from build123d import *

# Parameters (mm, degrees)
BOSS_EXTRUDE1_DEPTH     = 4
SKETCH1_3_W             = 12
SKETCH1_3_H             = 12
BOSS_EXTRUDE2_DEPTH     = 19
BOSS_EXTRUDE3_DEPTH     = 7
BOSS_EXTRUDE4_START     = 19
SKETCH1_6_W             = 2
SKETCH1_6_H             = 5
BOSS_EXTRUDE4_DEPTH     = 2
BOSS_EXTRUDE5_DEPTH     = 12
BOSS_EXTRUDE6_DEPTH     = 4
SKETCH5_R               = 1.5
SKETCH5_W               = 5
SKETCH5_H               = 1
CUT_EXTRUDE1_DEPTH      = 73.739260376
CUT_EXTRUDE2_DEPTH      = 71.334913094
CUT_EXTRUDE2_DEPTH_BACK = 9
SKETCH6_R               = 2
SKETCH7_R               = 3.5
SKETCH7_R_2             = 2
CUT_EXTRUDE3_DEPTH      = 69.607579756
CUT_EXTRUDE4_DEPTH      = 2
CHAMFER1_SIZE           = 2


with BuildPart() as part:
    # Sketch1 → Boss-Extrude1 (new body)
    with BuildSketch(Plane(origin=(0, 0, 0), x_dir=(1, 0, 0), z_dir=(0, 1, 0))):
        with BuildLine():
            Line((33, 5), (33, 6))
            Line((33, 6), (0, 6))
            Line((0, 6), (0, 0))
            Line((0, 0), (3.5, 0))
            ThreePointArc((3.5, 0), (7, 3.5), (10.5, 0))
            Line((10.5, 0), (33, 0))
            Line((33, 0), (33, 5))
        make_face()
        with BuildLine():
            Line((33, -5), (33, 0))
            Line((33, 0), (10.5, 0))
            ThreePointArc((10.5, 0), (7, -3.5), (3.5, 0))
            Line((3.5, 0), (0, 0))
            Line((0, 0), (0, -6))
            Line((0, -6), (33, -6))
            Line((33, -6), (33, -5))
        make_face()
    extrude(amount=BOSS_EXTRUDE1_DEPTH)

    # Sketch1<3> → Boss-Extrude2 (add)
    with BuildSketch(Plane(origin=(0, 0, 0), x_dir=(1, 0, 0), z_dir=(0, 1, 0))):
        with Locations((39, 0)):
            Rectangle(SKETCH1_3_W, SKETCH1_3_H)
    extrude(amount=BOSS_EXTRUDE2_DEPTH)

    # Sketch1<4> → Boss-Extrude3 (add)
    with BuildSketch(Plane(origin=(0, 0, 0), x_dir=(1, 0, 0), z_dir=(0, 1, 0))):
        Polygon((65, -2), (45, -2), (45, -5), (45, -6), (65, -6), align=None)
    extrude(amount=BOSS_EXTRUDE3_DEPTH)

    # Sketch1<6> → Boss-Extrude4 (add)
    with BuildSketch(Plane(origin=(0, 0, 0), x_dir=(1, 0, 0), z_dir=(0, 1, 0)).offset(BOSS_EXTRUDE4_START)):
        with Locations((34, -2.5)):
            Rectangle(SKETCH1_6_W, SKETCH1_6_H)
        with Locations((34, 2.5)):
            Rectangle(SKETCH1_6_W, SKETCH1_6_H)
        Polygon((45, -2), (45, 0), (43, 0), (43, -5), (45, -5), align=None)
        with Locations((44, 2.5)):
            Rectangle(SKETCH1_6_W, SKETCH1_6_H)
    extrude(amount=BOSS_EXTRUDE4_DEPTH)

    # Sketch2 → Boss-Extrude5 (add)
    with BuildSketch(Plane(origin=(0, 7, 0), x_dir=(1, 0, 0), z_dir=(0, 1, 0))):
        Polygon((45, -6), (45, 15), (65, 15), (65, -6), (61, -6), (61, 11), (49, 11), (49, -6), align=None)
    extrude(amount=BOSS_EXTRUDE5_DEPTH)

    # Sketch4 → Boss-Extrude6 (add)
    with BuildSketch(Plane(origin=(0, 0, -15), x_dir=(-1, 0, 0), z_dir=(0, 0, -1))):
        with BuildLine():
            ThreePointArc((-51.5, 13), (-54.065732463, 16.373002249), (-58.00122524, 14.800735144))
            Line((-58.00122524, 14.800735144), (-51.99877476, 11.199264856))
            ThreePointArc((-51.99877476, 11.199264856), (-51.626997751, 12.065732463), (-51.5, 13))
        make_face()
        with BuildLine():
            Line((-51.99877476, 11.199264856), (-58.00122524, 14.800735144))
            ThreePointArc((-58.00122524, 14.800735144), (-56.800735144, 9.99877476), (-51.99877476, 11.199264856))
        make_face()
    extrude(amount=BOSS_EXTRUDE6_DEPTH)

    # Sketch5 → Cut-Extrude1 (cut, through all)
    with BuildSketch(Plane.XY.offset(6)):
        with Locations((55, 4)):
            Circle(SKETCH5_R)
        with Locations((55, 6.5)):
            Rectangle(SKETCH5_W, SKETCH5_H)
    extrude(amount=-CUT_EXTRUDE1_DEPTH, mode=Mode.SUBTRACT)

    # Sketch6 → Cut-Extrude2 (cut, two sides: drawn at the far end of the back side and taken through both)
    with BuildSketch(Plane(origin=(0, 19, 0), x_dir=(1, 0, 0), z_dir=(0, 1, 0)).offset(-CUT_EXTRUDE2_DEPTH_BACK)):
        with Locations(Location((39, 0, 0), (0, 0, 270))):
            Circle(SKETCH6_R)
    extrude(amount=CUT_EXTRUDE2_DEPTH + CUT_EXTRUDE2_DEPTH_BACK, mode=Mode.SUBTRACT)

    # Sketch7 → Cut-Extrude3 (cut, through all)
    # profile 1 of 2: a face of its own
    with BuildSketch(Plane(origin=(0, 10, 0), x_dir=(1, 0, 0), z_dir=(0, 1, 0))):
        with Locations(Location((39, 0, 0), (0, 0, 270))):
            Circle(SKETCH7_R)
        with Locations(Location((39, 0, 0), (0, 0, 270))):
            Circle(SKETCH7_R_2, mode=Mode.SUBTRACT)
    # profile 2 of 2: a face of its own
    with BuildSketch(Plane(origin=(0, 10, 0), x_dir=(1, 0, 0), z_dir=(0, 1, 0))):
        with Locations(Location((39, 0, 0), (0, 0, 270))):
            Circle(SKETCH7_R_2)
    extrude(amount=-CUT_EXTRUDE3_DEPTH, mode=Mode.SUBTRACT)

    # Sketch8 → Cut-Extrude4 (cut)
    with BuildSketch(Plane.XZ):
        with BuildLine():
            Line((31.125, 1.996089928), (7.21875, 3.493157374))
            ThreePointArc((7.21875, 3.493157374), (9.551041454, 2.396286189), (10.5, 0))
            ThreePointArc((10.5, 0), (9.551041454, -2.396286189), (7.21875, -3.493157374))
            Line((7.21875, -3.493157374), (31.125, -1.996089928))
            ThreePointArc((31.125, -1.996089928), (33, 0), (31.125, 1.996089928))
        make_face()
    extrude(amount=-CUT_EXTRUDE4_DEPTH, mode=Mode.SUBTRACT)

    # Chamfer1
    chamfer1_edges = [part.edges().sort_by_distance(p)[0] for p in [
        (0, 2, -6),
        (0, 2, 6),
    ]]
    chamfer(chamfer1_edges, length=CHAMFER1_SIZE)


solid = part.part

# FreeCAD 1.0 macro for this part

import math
import FreeCAD as App
import Part
import Sketcher


def edges_at(feature, points):
    """Names of the edges that pass closest to the given points."""
    edges = feature.Shape.Edges
    near = lambda p: min(range(len(edges)), key=lambda i: edges[i].distToShape(Part.Vertex(*p))[0])
    return sorted({f"Edge{near(p) + 1}" for p in points})


def add_polygon(sketch, points):
    """Adds a closed chain of lines whose ends are joined by coincident constraints."""
    first, n = sketch.GeometryCount, len(points)
    for a, b in zip(points, points[1:] + points[:1]):
        sketch.addGeometry(Part.LineSegment(App.Vector(*a, 0), App.Vector(*b, 0)), False)
    for i in range(n):
        sketch.addConstraint(Sketcher.Constraint("Coincident", first + i, 2, first + (i + 1) % n, 1))

doc = App.newDocument("Part")
body = doc.addObject("PartDesign::Body", "Body")

# Sketch on XZ plane
sketch1 = body.newObject("Sketcher::SketchObject", "Sketch")
sketch1.AttachmentSupport = (doc.getObject("XZ_Plane"), [""])
sketch1.MapMode = "FlatFace"
add_polygon(sketch1, [(33, -6), (0, -6), (0, 6), (33, 6)])  # lines 0-3
sketch1.addGeometry(Part.Circle(App.Vector(7, 0, 0), App.Vector(0, 0, 1), 3.5), False)  # 4
sketch1.addConstraint(Sketcher.Constraint("Horizontal", 0))
sketch1.addConstraint(Sketcher.Constraint("Vertical", 1))
sketch1.addConstraint(Sketcher.Constraint("Horizontal", 2))
sketch1.addConstraint(Sketcher.Constraint("Vertical", 3))
sketch1.addConstraint(Sketcher.Constraint("Symmetric", 0, 2, 1, 2, -1, 1))
sketch1.addConstraint(Sketcher.Constraint("PointOnObject", 4, 3, -1))
sketch1.addConstraint(Sketcher.Constraint("Diameter", 4, 7.0))
sketch1.addConstraint(Sketcher.Constraint("DistanceX", 0, 2, 0, 1, 33.0))
sketch1.addConstraint(Sketcher.Constraint("DistanceY", 1, 1, 1, 2, 12.0))
sketch1.addConstraint(Sketcher.Constraint("DistanceX", -1, 1, 4, 3, 7.0))
pad1 = body.newObject("PartDesign::Pad", "Pad")
pad1.Profile = sketch1
pad1.Length = 4
pad1.Reversed = True

# Sketch on XZ plane
sketch2 = body.newObject("Sketcher::SketchObject", "Sketch001")
sketch2.AttachmentSupport = (doc.getObject("XZ_Plane"), [""])
sketch2.MapMode = "FlatFace"
add_polygon(sketch2, [(33, -6), (33, 6), (45, 6), (45, -6)])  # lines 0-3
sketch2.addConstraint(Sketcher.Constraint("Vertical", 0))
sketch2.addConstraint(Sketcher.Constraint("Horizontal", 1))
sketch2.addConstraint(Sketcher.Constraint("Vertical", 2))
sketch2.addConstraint(Sketcher.Constraint("Horizontal", 3))
sketch2.addConstraint(Sketcher.Constraint("Equal", 3, 0))
sketch2.addConstraint(Sketcher.Constraint("DistanceX", 1, 1, 1, 2, 12.0))
sketch2.addConstraint(Sketcher.Constraint("DistanceX", -1, 1, 0, 2, 33.0))
sketch2.addConstraint(Sketcher.Constraint("DistanceY", -1, 1, 0, 2, 6.0))
pad2 = body.newObject("PartDesign::Pad", "Pad001")
pad2.Profile = sketch2
pad2.Length = 19
pad2.Reversed = True

# Sketch on XZ plane
sketch3 = body.newObject("Sketcher::SketchObject", "Sketch002")
sketch3.AttachmentSupport = (doc.getObject("XZ_Plane"), [""])
sketch3.MapMode = "FlatFace"
add_polygon(sketch3, [(65, 2), (45, 2), (45, 6), (65, 6)])  # lines 0-3
sketch3.addConstraint(Sketcher.Constraint("Horizontal", 0))
sketch3.addConstraint(Sketcher.Constraint("Vertical", 1))
sketch3.addConstraint(Sketcher.Constraint("Horizontal", 2))
sketch3.addConstraint(Sketcher.Constraint("Vertical", 3))
sketch3.addConstraint(Sketcher.Constraint("DistanceX", 0, 2, 0, 1, 20.0))
sketch3.addConstraint(Sketcher.Constraint("DistanceY", 1, 1, 1, 2, 4.0))
sketch3.addConstraint(Sketcher.Constraint("DistanceX", -1, 1, 0, 2, 45.0))
sketch3.addConstraint(Sketcher.Constraint("DistanceY", -1, 1, 0, 2, 2.0))
pad3 = body.newObject("PartDesign::Pad", "Pad002")
pad3.Profile = sketch3
pad3.Length = 7
pad3.Reversed = True

# Sketch on XZ plane
sketch4 = body.newObject("Sketcher::SketchObject", "Sketch003")
sketch4.AttachmentSupport = (doc.getObject("XZ_Plane"), [""])
sketch4.MapMode = "FlatFace"
sketch4.AttachmentOffset = App.Placement(App.Vector(0, 0, -19), App.Rotation())
add_polygon(sketch4, [(33, 5), (35, 5), (35, -5), (33, -5)])  # lines 0-3
add_polygon(sketch4, [(43, 5), (45, 5), (45, -5), (43, -5)])  # lines 4-7
sketch4.addConstraint(Sketcher.Constraint("Horizontal", 0))
sketch4.addConstraint(Sketcher.Constraint("Vertical", 1))
sketch4.addConstraint(Sketcher.Constraint("Horizontal", 2))
sketch4.addConstraint(Sketcher.Constraint("Vertical", 3))
sketch4.addConstraint(Sketcher.Constraint("Horizontal", 4))
sketch4.addConstraint(Sketcher.Constraint("Vertical", 5))
sketch4.addConstraint(Sketcher.Constraint("Horizontal", 6))
sketch4.addConstraint(Sketcher.Constraint("Vertical", 7))
sketch4.addConstraint(Sketcher.Constraint("Horizontal", 3, 2, 4, 2))
sketch4.addConstraint(Sketcher.Constraint("Horizontal", 2, 2, 5, 2))
sketch4.addConstraint(Sketcher.Constraint("Equal", 2, 4))
sketch4.addConstraint(Sketcher.Constraint("DistanceX", 0, 1, 0, 2, 2.0))
sketch4.addConstraint(Sketcher.Constraint("DistanceY", 1, 2, 1, 1, 10.0))
sketch4.addConstraint(Sketcher.Constraint("DistanceX", -1, 1, 0, 2, 35.0))
sketch4.addConstraint(Sketcher.Constraint("DistanceY", -1, 1, 0, 2, 5.0))
sketch4.addConstraint(Sketcher.Constraint("DistanceX", -1, 1, 4, 2, 45.0))
pad4 = body.newObject("PartDesign::Pad", "Pad003")
pad4.Profile = sketch4
pad4.Length = 2
pad4.Reversed = True

# Sketch on XZ plane
sketch5 = body.newObject("Sketcher::SketchObject", "Sketch004")
sketch5.AttachmentSupport = (doc.getObject("XZ_Plane"), [""])
sketch5.MapMode = "FlatFace"
sketch5.AttachmentOffset = App.Placement(App.Vector(0, 0, -7), App.Rotation())
add_polygon(sketch5, [(45, -15), (45, 6), (49, 6), (49, -11), (61, -11), (61, 6), (65, 6), (65, -15)])  # lines 0-7
sketch5.addConstraint(Sketcher.Constraint("Vertical", 0))
sketch5.addConstraint(Sketcher.Constraint("Horizontal", 1))
sketch5.addConstraint(Sketcher.Constraint("Vertical", 2))
sketch5.addConstraint(Sketcher.Constraint("Horizontal", 3))
sketch5.addConstraint(Sketcher.Constraint("Vertical", 4))
sketch5.addConstraint(Sketcher.Constraint("Horizontal", 5))
sketch5.addConstraint(Sketcher.Constraint("Vertical", 6))
sketch5.addConstraint(Sketcher.Constraint("Horizontal", 7))
sketch5.addConstraint(Sketcher.Constraint("Horizontal", 1, 2, 4, 2))
sketch5.addConstraint(Sketcher.Constraint("Equal", 1, 5))
sketch5.addConstraint(Sketcher.Constraint("DistanceX", 1, 1, 1, 2, 4.0))
sketch5.addConstraint(Sketcher.Constraint("DistanceX", 3, 1, 3, 2, 12.0))
sketch5.addConstraint(Sketcher.Constraint("DistanceY", 0, 1, 0, 2, 21.0))
sketch5.addConstraint(Sketcher.Constraint("DistanceY", 2, 2, 2, 1, 17.0))
sketch5.addConstraint(Sketcher.Constraint("DistanceX", -1, 1, 0, 2, 45.0))
sketch5.addConstraint(Sketcher.Constraint("DistanceY", -1, 1, 0, 2, 6.0))
pad5 = body.newObject("PartDesign::Pad", "Pad004")
pad5.Profile = sketch5
pad5.Length = 12
pad5.Reversed = True

# Sketch on XY plane
sketch6 = body.newObject("Sketcher::SketchObject", "Sketch005")
sketch6.AttachmentSupport = (doc.getObject("XY_Plane"), [""])
sketch6.MapMode = "FlatFace"
sketch6.AttachmentOffset = App.Placement(App.Vector(0, 0, -15), App.Rotation())
sketch6.addGeometry(Part.ArcOfCircle(Part.Circle(App.Vector(55, 13, 0), App.Vector(0, 0, 1), 3.5), math.radians(31), math.radians(180)), False)
sketch6.addGeometry(Part.ArcOfCircle(Part.Circle(App.Vector(55, 13, 0), App.Vector(0, 0, 1), 3.5), math.radians(-149), math.radians(31)), False)
sketch6.addGeometry(Part.ArcOfCircle(Part.Circle(App.Vector(55, 13, 0), App.Vector(0, 0, 1), 3.5), math.radians(180), math.radians(211)), False)
sketch6.addConstraint(Sketcher.Constraint("Tangent", 0, 1, 1, 2))
sketch6.addConstraint(Sketcher.Constraint("Tangent", 1, 1, 2, 2))
sketch6.addConstraint(Sketcher.Constraint("Tangent", 2, 1, 0, 2))
sketch6.addConstraint(Sketcher.Constraint("Horizontal", 1, 3, 2, 1))
sketch6.addConstraint(Sketcher.Constraint("Radius", 0, 3.5))
sketch6.addConstraint(Sketcher.Constraint("DistanceX", -1, 1, 0, 3, 55.0))
sketch6.addConstraint(Sketcher.Constraint("DistanceY", -1, 1, 0, 3, 13.0))
sketch6.addConstraint(Sketcher.Constraint("DistanceX", 1, 1, 0, 1, 6.00245))
sketch6.addConstraint(Sketcher.Constraint("DistanceX", -1, 1, 0, 1, 58.001225))
pad6 = body.newObject("PartDesign::Pad", "Pad005")
pad6.Profile = sketch6
pad6.Length = 4
pad6.Reversed = True

# Sketch on XY plane
sketch7 = body.newObject("Sketcher::SketchObject", "Sketch006")
sketch7.AttachmentSupport = (doc.getObject("XY_Plane"), [""])
sketch7.MapMode = "FlatFace"
sketch7.AttachmentOffset = App.Placement(App.Vector(0, 0, 6), App.Rotation())
sketch7.addGeometry(Part.Circle(App.Vector(55, 4, 0), App.Vector(0, 0, 1), 1.5), False)  # 0
add_polygon(sketch7, [(52.5, 7), (52.5, 6), (57.5, 6), (57.5, 7)])  # lines 1-4
sketch7.addConstraint(Sketcher.Constraint("Vertical", 1))
sketch7.addConstraint(Sketcher.Constraint("Horizontal", 2))
sketch7.addConstraint(Sketcher.Constraint("Vertical", 3))
sketch7.addConstraint(Sketcher.Constraint("Horizontal", 4))
sketch7.addConstraint(Sketcher.Constraint("Diameter", 0, 3.0))
sketch7.addConstraint(Sketcher.Constraint("DistanceX", 2, 1, 2, 2, 5.0))
sketch7.addConstraint(Sketcher.Constraint("DistanceY", 1, 2, 1, 1, 1.0))
sketch7.addConstraint(Sketcher.Constraint("DistanceX", -1, 1, 0, 3, 55.0))
sketch7.addConstraint(Sketcher.Constraint("DistanceY", -1, 1, 0, 3, 4.0))
sketch7.addConstraint(Sketcher.Constraint("DistanceY", -1, 1, 1, 2, 6.0))
sketch7.addConstraint(Sketcher.Constraint("DistanceX", -1, 1, 1, 2, 52.5))
pocket1 = body.newObject("PartDesign::Pocket", "Pocket")
pocket1.Profile = sketch7
pocket1.Type = "ThroughAll"

# Sketch on XZ plane
sketch8 = body.newObject("Sketcher::SketchObject", "Sketch007")
sketch8.AttachmentSupport = (doc.getObject("XZ_Plane"), [""])
sketch8.MapMode = "FlatFace"
sketch8.AttachmentOffset = App.Placement(App.Vector(0, 0, -19), App.Rotation())
sketch8.addGeometry(Part.Circle(App.Vector(39, 0, 0), App.Vector(0, 0, 1), 2), False)
sketch8.addConstraint(Sketcher.Constraint("PointOnObject", 0, 3, -1))
sketch8.addConstraint(Sketcher.Constraint("Diameter", 0, 4.0))
sketch8.addConstraint(Sketcher.Constraint("DistanceX", -1, 1, 0, 3, 39.0))
pocket2 = body.newObject("PartDesign::Pocket", "Pocket001")
pocket2.Profile = sketch8
pocket2.Type = "TwoLengths"
pocket2.Length = 71.334913
pocket2.Length2 = 9

# Sketch on XZ plane
sketch9 = body.newObject("Sketcher::SketchObject", "Sketch008")
sketch9.AttachmentSupport = (doc.getObject("XZ_Plane"), [""])
sketch9.MapMode = "FlatFace"
sketch9.AttachmentOffset = App.Placement(App.Vector(0, 0, -10), App.Rotation())
sketch9.addGeometry(Part.Circle(App.Vector(39, 0, 0), App.Vector(0, 0, 1), 3.5), False)
sketch9.addConstraint(Sketcher.Constraint("PointOnObject", 0, 3, -1))
sketch9.addConstraint(Sketcher.Constraint("Diameter", 0, 7.0))
sketch9.addConstraint(Sketcher.Constraint("DistanceX", -1, 1, 0, 3, 39.0))
pocket3 = body.newObject("PartDesign::Pocket", "Pocket002")
pocket3.Profile = sketch9
pocket3.Length = 69.60758
pocket3.Reversed = True

# Sketch on XZ plane
sketch10 = body.newObject("Sketcher::SketchObject", "Sketch009")
sketch10.AttachmentSupport = (doc.getObject("XZ_Plane"), [""])
sketch10.MapMode = "FlatFace"
sketch10.addGeometry(Part.LineSegment(App.Vector(31.1, 2, 0), App.Vector(7.2, 3.5, 0)), False)
sketch10.addGeometry(Part.ArcOfCircle(Part.Circle(App.Vector(7, 0, 0), App.Vector(0, 0, 1), 3.5), math.radians(0), math.radians(86)), False)
sketch10.addGeometry(Part.ArcOfCircle(Part.Circle(App.Vector(7, 0, 0), App.Vector(0, 0, 1), 3.5), math.radians(-86), math.radians(0)), False)
sketch10.addGeometry(Part.LineSegment(App.Vector(7.2, -3.5, 0), App.Vector(31.1, -2, 0)), False)
sketch10.addGeometry(Part.ArcOfCircle(Part.Circle(App.Vector(31, 0, 0), App.Vector(0, 0, 1), 2), math.radians(-86), math.radians(86)), False)
sketch10.addConstraint(Sketcher.Constraint("Tangent", 0, 2, 1, 2))
sketch10.addConstraint(Sketcher.Constraint("Tangent", 1, 1, 2, 2))
sketch10.addConstraint(Sketcher.Constraint("Tangent", 2, 1, 3, 1))
sketch10.addConstraint(Sketcher.Constraint("Tangent", 3, 2, 4, 1))
sketch10.addConstraint(Sketcher.Constraint("Tangent", 4, 2, 0, 1))
sketch10.addConstraint(Sketcher.Constraint("Equal", 1, 2))
sketch10.addConstraint(Sketcher.Constraint("Symmetric", 0, 2, 2, 1, -1))
sketch10.addConstraint(Sketcher.Constraint("PointOnObject", 1, 1, -1))
sketch10.addConstraint(Sketcher.Constraint("Radius", 4, 2.0))
sketch10.addConstraint(Sketcher.Constraint("Radius", 1, 3.5))
sketch10.addConstraint(Sketcher.Constraint("DistanceX", -1, 1, 1, 3, 7.0))
sketch10.addConstraint(Sketcher.Constraint("DistanceX", -1, 1, 4, 3, 31.0))
pocket4 = body.newObject("PartDesign::Pocket", "Pocket003")
pocket4.Profile = sketch10
pocket4.Length = 2
doc.recompute()

chamfer = body.newObject("PartDesign::Chamfer", "Chamfer")
chamfer.Base = (pocket4, edges_at(pocket4, [(0, 2, -6), (0, 2, 6)]))
chamfer.Size = 2

doc.recompute()
